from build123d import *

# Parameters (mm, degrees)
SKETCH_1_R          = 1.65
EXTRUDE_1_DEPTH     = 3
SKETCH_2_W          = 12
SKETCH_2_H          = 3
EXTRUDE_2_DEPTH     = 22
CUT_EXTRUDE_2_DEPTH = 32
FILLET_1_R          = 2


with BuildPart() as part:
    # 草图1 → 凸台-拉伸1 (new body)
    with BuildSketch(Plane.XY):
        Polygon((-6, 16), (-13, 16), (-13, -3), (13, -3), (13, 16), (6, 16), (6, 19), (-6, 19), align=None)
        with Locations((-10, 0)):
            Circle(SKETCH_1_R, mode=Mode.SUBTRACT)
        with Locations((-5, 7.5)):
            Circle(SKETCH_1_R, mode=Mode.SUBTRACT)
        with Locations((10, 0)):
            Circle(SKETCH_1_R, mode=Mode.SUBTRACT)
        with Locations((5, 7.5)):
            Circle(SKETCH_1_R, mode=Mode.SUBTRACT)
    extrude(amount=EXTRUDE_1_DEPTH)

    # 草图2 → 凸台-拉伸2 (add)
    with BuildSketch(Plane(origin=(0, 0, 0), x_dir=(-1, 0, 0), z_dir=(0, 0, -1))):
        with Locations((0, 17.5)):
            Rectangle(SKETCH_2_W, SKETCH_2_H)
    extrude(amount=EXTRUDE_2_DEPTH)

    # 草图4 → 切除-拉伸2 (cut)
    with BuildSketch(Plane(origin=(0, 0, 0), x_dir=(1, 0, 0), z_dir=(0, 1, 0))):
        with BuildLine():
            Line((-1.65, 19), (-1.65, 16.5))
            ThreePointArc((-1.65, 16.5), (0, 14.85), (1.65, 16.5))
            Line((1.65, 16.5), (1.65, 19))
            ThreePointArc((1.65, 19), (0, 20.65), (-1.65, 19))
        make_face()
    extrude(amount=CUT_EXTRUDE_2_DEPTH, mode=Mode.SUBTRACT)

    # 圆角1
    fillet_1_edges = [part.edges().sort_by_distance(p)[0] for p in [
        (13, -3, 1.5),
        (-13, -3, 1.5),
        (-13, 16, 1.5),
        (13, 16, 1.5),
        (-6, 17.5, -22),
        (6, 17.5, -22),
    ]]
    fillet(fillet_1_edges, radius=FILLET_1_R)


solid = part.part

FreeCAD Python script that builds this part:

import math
import FreeCAD as App
import Part
import Sketcher

V = App.Vector
Q = App.Units.Quantity


def edges_at(feature, points):
    """Names of the edges that pass closest to the given points."""
    edges = feature.Shape.Edges
    near = lambda p: min(range(len(edges)), key=lambda i: edges[i].distToShape(Part.Vertex(*p))[0])
    return sorted({f"Edge{near(p) + 1}" for p in points})


def add_polygon(sketch, points):
    """Adds a closed chain of lines whose ends are joined by coincident constraints."""
    first, n = sketch.GeometryCount, len(points)
    for a, b in zip(points, points[1:] + points[:1]):
        sketch.addGeometry(Part.LineSegment(App.Vector(*a, 0), App.Vector(*b, 0)), False)
    for i in range(n):
        sketch.addConstraint(Sketcher.Constraint("Coincident", first + i, 2, first + (i + 1) % n, 1))

doc = App.newDocument("Part")
body = doc.addObject("PartDesign::Body", "Body")

# Sketch on XY plane
sketch1 = body.newObject("Sketcher::SketchObject", "Sketch")
sketch1.AttachmentSupport = (doc.getObject("XY_Plane"), [""])
sketch1.MapMode = "FlatFace"
add_polygon(sketch1, [(-6, 16), (-13, 16), (-13, -3), (13, -3), (13, 16), (6, 16), (6, 19), (-6, 19)])  # lines 0-7
sketch1.addGeometry(Part.Circle(V(-10, 0, 0), V(0, 0, 1), 1.65), False)  # 8
sketch1.addGeometry(Part.Circle(V(10, 0, 0), V(0, 0, 1), 1.65), False)  # 9
sketch1.addGeometry(Part.Circle(V(-5, 7.5, 0), V(0, 0, 1), 1.65), False)  # 10
sketch1.addGeometry(Part.Circle(V(5, 7.5, 0), V(0, 0, 1), 1.65), False)  # 11
sketch1.addConstraint(Sketcher.Constraint("Horizontal", 0))
sketch1.addConstraint(Sketcher.Constraint("Vertical", 1))
sketch1.addConstraint(Sketcher.Constraint("Horizontal", 2))
sketch1.addConstraint(Sketcher.Constraint("Vertical", 3))
sketch1.addConstraint(Sketcher.Constraint("Horizontal", 4))
sketch1.addConstraint(Sketcher.Constraint("Vertical", 5))
sketch1.addConstraint(Sketcher.Constraint("Horizontal", 6))
sketch1.addConstraint(Sketcher.Constraint("Vertical", 7))
sketch1.addConstraint(Sketcher.Constraint("Equal", 8, 9))
sketch1.addConstraint(Sketcher.Constraint("Equal", 9, 10))
sketch1.addConstraint(Sketcher.Constraint("Equal", 10, 11))
sketch1.addConstraint(Sketcher.Constraint("Symmetric", 8, 3, 9, 3, -1, 1))
sketch1.addConstraint(Sketcher.Constraint("Symmetric", 10, 3, 11, 3, -2))
sketch1.addConstraint(Sketcher.Constraint("Symmetric", 0, 2, 3, 2, -2))
sketch1.addConstraint(Sketcher.Constraint("PointOnObject", 8, 3, -1))
sketch1.addConstraint(Sketcher.Constraint("Equal", 0, 4))
sketch1.addConstraint(Sketcher.Constraint("Diameter", 8, Q("3.3 mm")))
sketch1.addConstraint(Sketcher.Constraint("DistanceX", 0, 2, 0, 1, Q("7 mm")))
sketch1.addConstraint(Sketcher.Constraint("DistanceX", 2, 1, 2, 2, Q("26 mm")))
sketch1.addConstraint(Sketcher.Constraint("DistanceY", 1, 2, 1, 1, Q("19 mm")))
sketch1.addConstraint(Sketcher.Constraint("DistanceY", 5, 1, 5, 2, Q("3 mm")))
sketch1.addConstraint(Sketcher.Constraint("DistanceX", 8, 3, -1, 1, Q("10 mm")))
sketch1.addConstraint(Sketcher.Constraint("DistanceX", 10, 3, -1, 1, Q("5 mm")))
sketch1.addConstraint(Sketcher.Constraint("DistanceY", -1, 1, 0, 2, Q("16 mm")))
sketch1.addConstraint(Sketcher.Constraint("DistanceY", -1, 1, 10, 3, Q("7.5 mm")))
pad1 = body.newObject("PartDesign::Pad", "Pad")
pad1.Profile = sketch1
pad1.Length = 3

# Sketch on XY plane
sketch2 = body.newObject("Sketcher::SketchObject", "Sketch001")
sketch2.AttachmentSupport = (doc.getObject("XY_Plane"), [""])
sketch2.MapMode = "FlatFace"
add_polygon(sketch2, [(6, 19), (6, 16), (-6, 16), (-6, 19)])  # lines 0-3
sketch2.addConstraint(Sketcher.Constraint("Vertical", 0))
sketch2.addConstraint(Sketcher.Constraint("Horizontal", 1))
sketch2.addConstraint(Sketcher.Constraint("Vertical", 2))
sketch2.addConstraint(Sketcher.Constraint("Horizontal", 3))
sketch2.addConstraint(Sketcher.Constraint("DistanceX", 1, 2, 1, 1, Q("12 mm")))
sketch2.addConstraint(Sketcher.Constraint("DistanceY", 0, 2, 0, 1, Q("3 mm")))
sketch2.addConstraint(Sketcher.Constraint("DistanceX", -1, 1, 0, 2, Q("6 mm")))
sketch2.addConstraint(Sketcher.Constraint("DistanceY", -1, 1, 0, 2, Q("16 mm")))
pad2 = body.newObject("PartDesign::Pad", "Pad001")
pad2.Profile = sketch2
pad2.Length = 22
pad2.Reversed = True

# Sketch on XZ plane
sketch3 = body.newObject("Sketcher::SketchObject", "Sketch002")
sketch3.AttachmentSupport = (doc.getObject("XZ_Plane"), [""])
sketch3.MapMode = "FlatFace"
sketch3.addGeometry(Part.LineSegment(V(-1.65, -19, 0), V(-1.65, -16.5, 0)), False)
sketch3.addGeometry(Part.ArcOfCircle(Part.Circle(V(0, -16.5, 0), V(0, 0, 1), 1.65), math.radians(0), math.radians(180)), False)
sketch3.addGeometry(Part.LineSegment(V(1.65, -16.5, 0), V(1.65, -19, 0)), False)
sketch3.addGeometry(Part.ArcOfCircle(Part.Circle(V(0, -19, 0), V(0, 0, 1), 1.65), math.radians(180), math.radians(360)), False)
sketch3.addConstraint(Sketcher.Constraint("Tangent", 0, 2, 1, 2))
sketch3.addConstraint(Sketcher.Constraint("Tangent", 1, 1, 2, 1))
sketch3.addConstraint(Sketcher.Constraint("Tangent", 2, 2, 3, 2))
sketch3.addConstraint(Sketcher.Constraint("Tangent", 3, 1, 0, 1))
sketch3.addConstraint(Sketcher.Constraint("Vertical", 0))
sketch3.addConstraint(Sketcher.Constraint("Vertical", 2))
sketch3.addConstraint(Sketcher.Constraint("PointOnObject", 1, 3, -2))
sketch3.addConstraint(Sketcher.Constraint("Radius", 1, Q("1.65 mm")))
sketch3.addConstraint(Sketcher.Constraint("DistanceY", 0, 1, 0, 2, Q("2.5 mm")))
sketch3.addConstraint(Sketcher.Constraint("DistanceY", 3, 3, -1, 1, Q("19 mm")))
pocket1 = body.newObject("PartDesign::Pocket", "Pocket")
pocket1.Profile = sketch3
pocket1.Length = 32
doc.recompute()

fillet = body.newObject("PartDesign::Fillet", "Fillet")
fillet.Base = (pocket1, edges_at(pocket1, [
    (13, -3, 1.5),
    (-13, -3, 1.5),
    (-13, 16, 1.5),
    (13, 16, 1.5),
    (-6, 17.5, -22),
    (6, 17.5, -22),
]))
fillet.Radius = 2

doc.recompute()
